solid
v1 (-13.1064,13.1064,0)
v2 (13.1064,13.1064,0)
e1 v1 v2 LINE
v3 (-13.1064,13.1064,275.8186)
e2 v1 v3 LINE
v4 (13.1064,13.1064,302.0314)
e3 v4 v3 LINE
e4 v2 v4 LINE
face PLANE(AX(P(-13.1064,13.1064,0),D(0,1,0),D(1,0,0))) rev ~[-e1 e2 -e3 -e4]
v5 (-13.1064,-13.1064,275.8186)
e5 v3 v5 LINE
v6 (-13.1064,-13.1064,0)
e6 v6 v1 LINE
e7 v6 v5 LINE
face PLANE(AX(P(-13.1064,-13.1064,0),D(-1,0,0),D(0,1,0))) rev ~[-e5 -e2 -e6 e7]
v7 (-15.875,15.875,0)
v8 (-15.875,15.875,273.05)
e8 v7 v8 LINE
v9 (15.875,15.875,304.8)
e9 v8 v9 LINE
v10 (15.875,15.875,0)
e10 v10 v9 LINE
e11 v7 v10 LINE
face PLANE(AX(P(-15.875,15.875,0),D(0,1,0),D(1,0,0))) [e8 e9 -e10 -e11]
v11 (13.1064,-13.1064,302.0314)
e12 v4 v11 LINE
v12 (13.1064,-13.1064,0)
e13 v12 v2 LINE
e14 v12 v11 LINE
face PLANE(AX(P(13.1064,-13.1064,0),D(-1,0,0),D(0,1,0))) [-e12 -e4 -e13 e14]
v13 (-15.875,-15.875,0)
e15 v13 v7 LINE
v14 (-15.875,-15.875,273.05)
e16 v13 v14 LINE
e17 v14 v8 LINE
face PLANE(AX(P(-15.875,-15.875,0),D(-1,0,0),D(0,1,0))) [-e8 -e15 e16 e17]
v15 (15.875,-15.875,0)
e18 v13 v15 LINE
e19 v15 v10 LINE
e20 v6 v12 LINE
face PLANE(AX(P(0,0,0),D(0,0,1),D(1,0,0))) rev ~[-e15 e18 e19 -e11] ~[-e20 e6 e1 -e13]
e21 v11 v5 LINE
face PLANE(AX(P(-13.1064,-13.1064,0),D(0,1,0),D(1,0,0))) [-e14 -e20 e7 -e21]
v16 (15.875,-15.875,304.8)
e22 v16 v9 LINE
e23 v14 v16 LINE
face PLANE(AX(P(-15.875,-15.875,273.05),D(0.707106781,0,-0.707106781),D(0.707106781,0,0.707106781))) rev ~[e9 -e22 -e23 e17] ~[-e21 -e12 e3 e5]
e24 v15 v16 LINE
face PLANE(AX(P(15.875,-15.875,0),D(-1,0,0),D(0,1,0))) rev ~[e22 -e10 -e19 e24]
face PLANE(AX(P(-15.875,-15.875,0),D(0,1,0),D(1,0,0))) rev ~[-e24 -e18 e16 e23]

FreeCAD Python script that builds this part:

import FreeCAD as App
import Part
import Sketcher

V = App.Vector
Q = App.Units.Quantity


def add_polygon(sketch, points):
    """Adds a closed chain of lines whose ends are joined by coincident constraints."""
    first, n = sketch.GeometryCount, len(points)
    for a, b in zip(points, points[1:] + points[:1]):
        sketch.addGeometry(Part.LineSegment(App.Vector(*a, 0), App.Vector(*b, 0)), False)
    for i in range(n):
        sketch.addConstraint(Sketcher.Constraint("Coincident", first + i, 2, first + (i + 1) % n, 1))

doc = App.newDocument("Part")
body = doc.addObject("PartDesign::Body", "Body")

# Sketch on XY plane
sketch1 = doc.addObject("Sketcher::SketchObject", "Sketch")
body.addObject(sketch1)
sketch1.AttachmentSupport = (doc.XY_Plane, [""])
sketch1.MapMode = "FlatFace"
add_polygon(sketch1, [(-16, 16), (-16, -16), (16, -16), (16, 16)])  # lines 0-3
add_polygon(sketch1, [(13, -13), (-13, -13), (-13, 13), (13, 13)])  # lines 4-7
sketch1.addConstraint([
    Sketcher.Constraint("Vertical", 0),
    Sketcher.Constraint("Horizontal", 1),
    Sketcher.Constraint("Vertical", 2),
    Sketcher.Constraint("Horizontal", 3),
    Sketcher.Constraint("Horizontal", 4),
    Sketcher.Constraint("Vertical", 5),
    Sketcher.Constraint("Horizontal", 6),
    Sketcher.Constraint("Vertical", 7),
    Sketcher.Constraint("Symmetric", 0, 2, 2, 2, -1, 1),
    Sketcher.Constraint("Symmetric", 4, 2, 6, 2, -1, 1),
    Sketcher.Constraint("Equal", 3, 0),
    Sketcher.Constraint("Equal", 6, 5),
    Sketcher.Constraint("DistanceX", 1, 1, 1, 2, Q("1.25 in")),
    Sketcher.Constraint("DistanceX", 4, 2, 4, 1, Q("1.032 in")),
])
pad1 = doc.addObject("PartDesign::Pad", "Pad")
body.addObject(pad1)
pad1.Profile = sketch1
pad1.Length = Q("12 in")

# Sketch on XZ plane
sketch2 = doc.addObject("Sketcher::SketchObject", "Sketch001")
body.addObject(sketch2)
sketch2.AttachmentSupport = (doc.XZ_Plane, [""])
sketch2.MapMode = "FlatFace"
sketch2.AttachmentOffset = App.Placement(V(0, 0, 0.625 * 25.4), App.Rotation())
add_polygon(sketch2, [(16, 305), (-16, 305), (-16, 273)])  # lines 0-2
sketch2.addConstraint([
    Sketcher.Constraint("Horizontal", 0),
    Sketcher.Constraint("Vertical", 1),
    Sketcher.Constraint("Equal", 0, 1),
    Sketcher.Constraint("DistanceY", -1, 1, 0, 2, Q("12 in")),
    Sketcher.Constraint("DistanceX", 0, 2, 0, 1, Q("1.25 in")),
    Sketcher.Constraint("DistanceX", 0, 2, -1, 1, Q("0.625 in")),
])
pocket1 = doc.addObject("PartDesign::Pocket", "Pocket")
body.addObject(pocket1)
pocket1.Profile = sketch2
pocket1.Length = Q("1.25 in")

doc.recompute()
